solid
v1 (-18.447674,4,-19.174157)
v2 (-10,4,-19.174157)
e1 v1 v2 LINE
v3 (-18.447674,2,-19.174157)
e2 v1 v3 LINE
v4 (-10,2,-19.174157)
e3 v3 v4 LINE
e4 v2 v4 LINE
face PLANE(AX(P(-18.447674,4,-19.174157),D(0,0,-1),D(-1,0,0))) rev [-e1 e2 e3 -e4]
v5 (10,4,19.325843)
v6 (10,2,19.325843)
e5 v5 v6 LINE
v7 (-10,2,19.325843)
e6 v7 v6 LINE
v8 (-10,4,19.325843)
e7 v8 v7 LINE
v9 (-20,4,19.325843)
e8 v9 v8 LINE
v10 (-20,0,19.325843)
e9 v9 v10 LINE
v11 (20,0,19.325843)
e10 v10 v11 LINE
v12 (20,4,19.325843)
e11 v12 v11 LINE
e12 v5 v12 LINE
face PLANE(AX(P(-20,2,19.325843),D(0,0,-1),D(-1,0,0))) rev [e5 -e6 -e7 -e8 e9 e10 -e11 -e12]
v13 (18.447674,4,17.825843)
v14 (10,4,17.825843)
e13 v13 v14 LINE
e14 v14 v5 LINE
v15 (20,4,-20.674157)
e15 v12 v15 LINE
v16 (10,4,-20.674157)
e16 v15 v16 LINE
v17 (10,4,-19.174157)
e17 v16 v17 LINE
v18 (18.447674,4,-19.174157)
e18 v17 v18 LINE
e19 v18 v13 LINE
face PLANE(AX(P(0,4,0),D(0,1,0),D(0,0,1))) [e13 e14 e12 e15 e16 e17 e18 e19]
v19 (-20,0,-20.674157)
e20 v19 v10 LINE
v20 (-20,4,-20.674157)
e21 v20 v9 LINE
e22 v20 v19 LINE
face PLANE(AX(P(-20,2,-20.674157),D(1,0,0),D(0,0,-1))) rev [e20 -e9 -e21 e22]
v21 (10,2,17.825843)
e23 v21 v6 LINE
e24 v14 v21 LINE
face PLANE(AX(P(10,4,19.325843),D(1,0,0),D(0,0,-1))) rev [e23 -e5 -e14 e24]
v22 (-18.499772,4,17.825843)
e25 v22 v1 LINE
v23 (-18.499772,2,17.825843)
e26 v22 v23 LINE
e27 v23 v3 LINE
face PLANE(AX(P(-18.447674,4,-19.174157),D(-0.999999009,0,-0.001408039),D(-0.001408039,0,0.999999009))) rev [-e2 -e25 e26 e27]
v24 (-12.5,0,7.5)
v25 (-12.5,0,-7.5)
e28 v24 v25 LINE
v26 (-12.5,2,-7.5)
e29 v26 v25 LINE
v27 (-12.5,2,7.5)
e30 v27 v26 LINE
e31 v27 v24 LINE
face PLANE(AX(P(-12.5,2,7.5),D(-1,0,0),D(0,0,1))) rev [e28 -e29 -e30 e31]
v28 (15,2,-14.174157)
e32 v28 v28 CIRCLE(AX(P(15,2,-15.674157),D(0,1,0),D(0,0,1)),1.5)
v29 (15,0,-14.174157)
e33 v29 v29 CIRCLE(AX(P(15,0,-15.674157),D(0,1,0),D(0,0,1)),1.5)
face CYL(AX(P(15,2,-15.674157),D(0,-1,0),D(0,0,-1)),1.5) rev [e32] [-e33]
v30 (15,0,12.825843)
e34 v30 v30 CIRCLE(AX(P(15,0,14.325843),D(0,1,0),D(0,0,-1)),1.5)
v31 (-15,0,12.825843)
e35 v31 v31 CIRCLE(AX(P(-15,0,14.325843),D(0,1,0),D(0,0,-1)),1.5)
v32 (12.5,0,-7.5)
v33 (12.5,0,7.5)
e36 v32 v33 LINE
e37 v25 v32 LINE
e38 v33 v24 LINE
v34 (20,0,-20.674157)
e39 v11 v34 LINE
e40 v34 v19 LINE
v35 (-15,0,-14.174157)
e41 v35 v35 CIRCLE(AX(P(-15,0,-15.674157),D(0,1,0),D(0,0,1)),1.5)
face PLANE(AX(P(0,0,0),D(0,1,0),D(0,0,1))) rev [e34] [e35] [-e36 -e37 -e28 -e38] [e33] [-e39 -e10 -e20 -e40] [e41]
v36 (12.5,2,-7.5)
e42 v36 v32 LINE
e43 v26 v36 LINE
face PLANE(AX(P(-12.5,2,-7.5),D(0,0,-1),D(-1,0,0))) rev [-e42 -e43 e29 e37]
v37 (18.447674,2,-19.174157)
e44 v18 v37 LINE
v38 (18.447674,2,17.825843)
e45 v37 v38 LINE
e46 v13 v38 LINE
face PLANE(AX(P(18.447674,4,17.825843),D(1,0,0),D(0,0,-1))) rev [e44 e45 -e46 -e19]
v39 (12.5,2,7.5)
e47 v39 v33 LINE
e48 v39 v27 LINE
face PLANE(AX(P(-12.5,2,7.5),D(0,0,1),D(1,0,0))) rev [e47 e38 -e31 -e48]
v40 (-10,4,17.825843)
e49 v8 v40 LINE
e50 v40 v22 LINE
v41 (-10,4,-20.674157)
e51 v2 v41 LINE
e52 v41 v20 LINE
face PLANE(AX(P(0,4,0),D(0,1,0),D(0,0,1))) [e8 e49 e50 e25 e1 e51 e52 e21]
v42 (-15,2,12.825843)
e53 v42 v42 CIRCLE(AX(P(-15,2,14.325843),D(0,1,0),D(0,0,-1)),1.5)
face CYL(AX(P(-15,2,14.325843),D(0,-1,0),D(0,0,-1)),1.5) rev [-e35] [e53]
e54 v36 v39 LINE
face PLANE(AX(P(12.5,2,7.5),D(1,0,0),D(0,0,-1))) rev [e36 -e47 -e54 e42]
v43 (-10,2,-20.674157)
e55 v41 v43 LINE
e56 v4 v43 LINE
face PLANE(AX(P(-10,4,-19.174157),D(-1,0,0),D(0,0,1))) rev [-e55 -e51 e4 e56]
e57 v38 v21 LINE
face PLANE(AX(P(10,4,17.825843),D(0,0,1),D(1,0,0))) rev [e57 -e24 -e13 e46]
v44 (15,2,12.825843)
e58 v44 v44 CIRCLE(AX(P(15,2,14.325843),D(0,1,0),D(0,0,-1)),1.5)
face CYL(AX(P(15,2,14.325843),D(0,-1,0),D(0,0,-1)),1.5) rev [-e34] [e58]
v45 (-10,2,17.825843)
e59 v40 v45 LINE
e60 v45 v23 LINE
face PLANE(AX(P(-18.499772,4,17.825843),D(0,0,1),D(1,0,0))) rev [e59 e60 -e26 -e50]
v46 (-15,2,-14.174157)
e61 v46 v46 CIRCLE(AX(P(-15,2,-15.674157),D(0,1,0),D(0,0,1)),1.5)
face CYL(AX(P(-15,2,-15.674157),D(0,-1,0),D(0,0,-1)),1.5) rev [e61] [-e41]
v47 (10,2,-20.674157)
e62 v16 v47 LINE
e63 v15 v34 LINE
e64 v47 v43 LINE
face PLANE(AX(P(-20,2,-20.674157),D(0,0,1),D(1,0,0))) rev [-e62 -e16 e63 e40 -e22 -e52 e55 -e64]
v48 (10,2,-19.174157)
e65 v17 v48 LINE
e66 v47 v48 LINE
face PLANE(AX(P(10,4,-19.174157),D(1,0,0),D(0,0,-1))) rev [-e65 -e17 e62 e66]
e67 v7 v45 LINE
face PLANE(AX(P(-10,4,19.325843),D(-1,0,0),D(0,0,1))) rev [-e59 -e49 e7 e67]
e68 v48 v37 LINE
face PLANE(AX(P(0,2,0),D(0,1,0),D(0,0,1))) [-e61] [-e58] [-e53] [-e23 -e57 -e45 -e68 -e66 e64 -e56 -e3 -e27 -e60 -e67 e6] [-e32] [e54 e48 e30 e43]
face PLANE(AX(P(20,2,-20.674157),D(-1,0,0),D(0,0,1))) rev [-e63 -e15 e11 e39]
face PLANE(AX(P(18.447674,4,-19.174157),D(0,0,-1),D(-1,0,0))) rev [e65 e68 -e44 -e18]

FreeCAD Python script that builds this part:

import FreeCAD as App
import Part
import Sketcher
Q = App.Units.Quantity


def add_polygon(sketch, points):
    """Adds a closed chain of lines whose ends are joined by coincident constraints."""
    first, n = sketch.GeometryCount, len(points)
    for a, b in zip(points, points[1:] + points[:1]):
        sketch.addGeometry(Part.LineSegment(App.Vector(*a, 0), App.Vector(*b, 0)), False)
    for i in range(n):
        sketch.addConstraint(Sketcher.Constraint("Coincident", first + i, 2, first + (i + 1) % n, 1))

doc = App.newDocument("Part")
body = doc.addObject("PartDesign::Body", "Body")

sketch1 = body.newObject("Sketcher::SketchObject", "Sketch")
sketch1.AttachmentSupport = (doc.getObject("XZ_Plane"), [""])
sketch1.MapMode = "FlatFace"
add_polygon(sketch1, [(-20, -20.7), (-20, 19.3), (20, 19.3), (20, -20.7)])
sketch1.addGeometry(Part.Circle(App.Vector(-15, 14.3, 0), App.Vector(0, 0, 1), 1.5), False)
sketch1.addGeometry(Part.Circle(App.Vector(15, 14.3, 0), App.Vector(0, 0, 1), 1.5), False)
sketch1.addGeometry(Part.Circle(App.Vector(-15, -15.7, 0), App.Vector(0, 0, 1), 1.5), False)
sketch1.addGeometry(Part.Circle(App.Vector(15, -15.7, 0), App.Vector(0, 0, 1), 1.5), False)
sketch1.addConstraint(Sketcher.Constraint("Vertical", 0))
sketch1.addConstraint(Sketcher.Constraint("Horizontal", 1))
sketch1.addConstraint(Sketcher.Constraint("Vertical", 2))
sketch1.addConstraint(Sketcher.Constraint("Horizontal", 3))
sketch1.addConstraint(Sketcher.Constraint("Equal", 4, 5))
sketch1.addConstraint(Sketcher.Constraint("Equal", 5, 6))
sketch1.addConstraint(Sketcher.Constraint("Equal", 6, 7))
sketch1.addConstraint(Sketcher.Constraint("Symmetric", 4, 3, 5, 3, -2))
sketch1.addConstraint(Sketcher.Constraint("Symmetric", 6, 3, 7, 3, -2))
sketch1.addConstraint(Sketcher.Constraint("Vertical", 4, 3, 6, 3))
sketch1.addConstraint(Sketcher.Constraint("Equal", 3, 0))
sketch1.addConstraint(Sketcher.Constraint("Diameter", 4, Q("3 mm")))
sketch1.addConstraint(Sketcher.Constraint("DistanceX", 1, 1, 1, 2, Q("40 mm")))
sketch1.addConstraint(Sketcher.Constraint("DistanceX", 4, 3, -1, 1, Q("15 mm")))
sketch1.addConstraint(Sketcher.Constraint("DistanceX", 0, 2, -1, 1, Q("20 mm")))
sketch1.addConstraint(Sketcher.Constraint("DistanceY", 6, 3, 4, 3, Q("30 mm")))
sketch1.addConstraint(Sketcher.Constraint("DistanceY", 4, 3, 0, 2, Q("5 mm")))
sketch1.addConstraint(Sketcher.Constraint("DistanceY", -1, 1, 4, 3, Q("14.325843 mm")))
pad1 = body.newObject("PartDesign::Pad", "Pad")
pad1.Profile = sketch1
pad1.Length = 2
pad1.Reversed = True

sketch2 = body.newObject("Sketcher::SketchObject", "Sketch001")
sketch2.AttachmentSupport = (doc.getObject("XZ_Plane"), [""])
sketch2.MapMode = "FlatFace"
sketch2.AttachmentOffset = App.Placement(App.Vector(0, 0, -2), App.Rotation())
add_polygon(sketch2, [(-10, -19.2), (-10, -20.7), (-20, -20.7), (-20, 19.3), (-10, 19.3), (-10, 17.8), (-18.5, 17.8), (-18.4, -19.2)])
add_polygon(sketch2, [(10, 17.8), (10, 19.3), (20, 19.3), (20, -20.7), (10, -20.7), (10, -19.2), (18.4, -19.2), (18.4, 17.8)])
sketch2.addConstraint(Sketcher.Constraint("Vertical", 0))
sketch2.addConstraint(Sketcher.Constraint("Horizontal", 1))
sketch2.addConstraint(Sketcher.Constraint("Vertical", 2))
sketch2.addConstraint(Sketcher.Constraint("Horizontal", 3))
sketch2.addConstraint(Sketcher.Constraint("Vertical", 4))
sketch2.addConstraint(Sketcher.Constraint("Horizontal", 5))
sketch2.addConstraint(Sketcher.Constraint("Horizontal", 7))
sketch2.addConstraint(Sketcher.Constraint("Vertical", 8))
sketch2.addConstraint(Sketcher.Constraint("Horizontal", 9))
sketch2.addConstraint(Sketcher.Constraint("Vertical", 10))
sketch2.addConstraint(Sketcher.Constraint("Horizontal", 11))
sketch2.addConstraint(Sketcher.Constraint("Vertical", 12))
sketch2.addConstraint(Sketcher.Constraint("Horizontal", 13))
sketch2.addConstraint(Sketcher.Constraint("Vertical", 14))
sketch2.addConstraint(Sketcher.Constraint("Horizontal", 15))
sketch2.addConstraint(Sketcher.Constraint("Symmetric", 3, 2, 8, 2, -2))
sketch2.addConstraint(Sketcher.Constraint("Symmetric", 1, 2, 10, 2, -2))
sketch2.addConstraint(Sketcher.Constraint("Symmetric", 7, 2, 12, 2, -2))
sketch2.addConstraint(Sketcher.Constraint("Horizontal", 5, 2, 14, 2))
sketch2.addConstraint(Sketcher.Constraint("Vertical", 0, 2, 3, 2))
sketch2.addConstraint(Sketcher.Constraint("Equal", 7, 13))
sketch2.addConstraint(Sketcher.Constraint("Equal", 0, 4))
sketch2.addConstraint(Sketcher.Constraint("DistanceX", 1, 2, 1, 1, Q("10 mm")))
sketch2.addConstraint(Sketcher.Constraint("DistanceY", 2, 1, 2, 2, Q("40 mm")))
sketch2.addConstraint(Sketcher.Constraint("DistanceY", 14, 1, 14, 2, Q("37 mm")))
sketch2.addConstraint(Sketcher.Constraint("DistanceX", 0, 2, -1, 1, Q("10 mm")))
sketch2.addConstraint(Sketcher.Constraint("DistanceX", 5, 2, 5, 1, Q("8.499772 mm")))
sketch2.addConstraint(Sketcher.Constraint("DistanceX", 7, 1, 7, 2, Q("8.447674 mm")))
sketch2.addConstraint(Sketcher.Constraint("DistanceY", 0, 2, -1, 1, Q("20.674157 mm")))
pad2 = body.newObject("PartDesign::Pad", "Pad001")
pad2.Profile = sketch2
pad2.Length = 2
pad2.Reversed = True

sketch3 = body.newObject("Sketcher::SketchObject", "Sketch002")
sketch3.AttachmentSupport = (doc.getObject("XZ_Plane"), [""])
sketch3.MapMode = "FlatFace"
add_polygon(sketch3, [(-12, 8), (-12, -8), (12, -8), (12, 8)])
sketch3.addConstraint(Sketcher.Constraint("Vertical", 0))
sketch3.addConstraint(Sketcher.Constraint("Horizontal", 1))
sketch3.addConstraint(Sketcher.Constraint("Vertical", 2))
sketch3.addConstraint(Sketcher.Constraint("Horizontal", 3))
sketch3.addConstraint(Sketcher.Constraint("Symmetric", 0, 2, 2, 2, -1, 1))
sketch3.addConstraint(Sketcher.Constraint("DistanceX", 1, 1, 1, 2, Q("25 mm")))
sketch3.addConstraint(Sketcher.Constraint("DistanceY", 0, 2, 0, 1, Q("15 mm")))
pocket1 = body.newObject("PartDesign::Pocket", "Pocket")
pocket1.Profile = sketch3
pocket1.Length = 2

doc.recompute()
